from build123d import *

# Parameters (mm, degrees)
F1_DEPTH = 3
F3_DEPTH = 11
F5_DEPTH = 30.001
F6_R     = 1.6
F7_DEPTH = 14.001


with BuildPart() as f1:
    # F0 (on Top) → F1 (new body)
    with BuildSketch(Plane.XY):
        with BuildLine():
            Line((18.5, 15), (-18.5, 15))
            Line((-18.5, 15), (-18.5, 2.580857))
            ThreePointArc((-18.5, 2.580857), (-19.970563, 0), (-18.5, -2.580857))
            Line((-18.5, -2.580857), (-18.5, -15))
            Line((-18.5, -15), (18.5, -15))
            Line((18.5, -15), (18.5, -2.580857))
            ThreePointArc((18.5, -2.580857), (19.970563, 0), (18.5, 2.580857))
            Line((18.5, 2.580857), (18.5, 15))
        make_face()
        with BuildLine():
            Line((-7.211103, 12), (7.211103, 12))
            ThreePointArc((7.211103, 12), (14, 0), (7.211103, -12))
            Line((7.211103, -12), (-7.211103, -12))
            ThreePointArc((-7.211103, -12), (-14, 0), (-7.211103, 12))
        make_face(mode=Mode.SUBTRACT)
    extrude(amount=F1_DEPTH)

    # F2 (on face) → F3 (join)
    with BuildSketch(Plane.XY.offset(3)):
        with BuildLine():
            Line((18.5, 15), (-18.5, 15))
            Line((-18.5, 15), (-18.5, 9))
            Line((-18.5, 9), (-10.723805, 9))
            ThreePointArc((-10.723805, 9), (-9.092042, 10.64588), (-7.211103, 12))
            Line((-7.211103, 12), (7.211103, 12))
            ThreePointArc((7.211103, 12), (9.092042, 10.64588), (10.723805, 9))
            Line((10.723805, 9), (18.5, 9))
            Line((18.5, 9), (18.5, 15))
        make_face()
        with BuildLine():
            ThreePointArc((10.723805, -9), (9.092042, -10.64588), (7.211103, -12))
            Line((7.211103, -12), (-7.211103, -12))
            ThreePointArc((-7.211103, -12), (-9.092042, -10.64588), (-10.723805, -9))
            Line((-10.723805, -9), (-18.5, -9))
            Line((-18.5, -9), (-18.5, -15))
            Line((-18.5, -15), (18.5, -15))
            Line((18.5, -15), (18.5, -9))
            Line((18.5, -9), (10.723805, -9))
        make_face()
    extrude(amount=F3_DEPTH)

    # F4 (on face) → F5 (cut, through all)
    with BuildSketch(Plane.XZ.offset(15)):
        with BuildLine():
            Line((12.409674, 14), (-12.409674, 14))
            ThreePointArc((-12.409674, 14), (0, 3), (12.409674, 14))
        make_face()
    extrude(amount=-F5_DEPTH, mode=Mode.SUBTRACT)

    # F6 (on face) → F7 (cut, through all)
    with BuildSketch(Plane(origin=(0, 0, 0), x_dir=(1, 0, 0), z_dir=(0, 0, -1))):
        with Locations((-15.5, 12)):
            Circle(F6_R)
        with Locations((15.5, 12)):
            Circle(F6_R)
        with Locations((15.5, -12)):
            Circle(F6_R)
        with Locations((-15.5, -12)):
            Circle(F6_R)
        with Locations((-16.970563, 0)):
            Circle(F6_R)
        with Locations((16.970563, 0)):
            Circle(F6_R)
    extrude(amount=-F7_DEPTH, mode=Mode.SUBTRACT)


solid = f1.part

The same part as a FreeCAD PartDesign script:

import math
import FreeCAD as App
import Part
import Sketcher

V = App.Vector

doc = App.newDocument("Part")
body = doc.addObject("PartDesign::Body", "Body")

sketch1 = body.newObject("Sketcher::SketchObject", "Sketch")
sketch1.AttachmentSupport = (doc.getObject("XY_Plane"), [""])
sketch1.MapMode = "FlatFace"
sketch1.addGeometry([
    Part.LineSegment(V(18.5, 15, 0), V(-18.5, 15, 0)),
    Part.LineSegment(V(-18.5, 15, 0), V(-18.5, 2.6, 0)),
    Part.ArcOfCircle(Part.Circle(V(-17, 0, 0), V(0, 0, 1), 3), math.radians(121), math.radians(239)),
    Part.LineSegment(V(-18.5, -2.6, 0), V(-18.5, -15, 0)),
    Part.LineSegment(V(-18.5, -15, 0), V(18.5, -15, 0)),
    Part.LineSegment(V(18.5, -15, 0), V(18.5, -2.6, 0)),
    Part.ArcOfCircle(Part.Circle(V(17, 0, 0), V(0, 0, 1), 3), math.radians(-59), math.radians(59)),
    Part.LineSegment(V(18.5, 2.6, 0), V(18.5, 15, 0)),
    Part.ArcOfCircle(Part.Circle(V(0, 0, 0), V(0, 0, 1), 14), math.radians(121), math.radians(239)),
    Part.LineSegment(V(-7.2, 12, 0), V(7.2, 12, 0)),
    Part.ArcOfCircle(Part.Circle(V(0, 0, 0), V(0, 0, 1), 14), math.radians(-59), math.radians(59)),
    Part.LineSegment(V(7.2, -12, 0), V(-7.2, -12, 0)),
], False)
sketch1.addConstraint([
    Sketcher.Constraint("Coincident", 0, 2, 1, 1),
    Sketcher.Constraint("Coincident", 1, 2, 2, 1),
    Sketcher.Constraint("Coincident", 2, 2, 3, 1),
    Sketcher.Constraint("Coincident", 3, 2, 4, 1),
    Sketcher.Constraint("Coincident", 4, 2, 5, 1),
    Sketcher.Constraint("Coincident", 5, 2, 6, 1),
    Sketcher.Constraint("Coincident", 6, 2, 7, 1),
    Sketcher.Constraint("Coincident", 7, 2, 0, 1),
    Sketcher.Constraint("Coincident", 8, 1, 9, 1),
    Sketcher.Constraint("Coincident", 9, 2, 10, 2),
    Sketcher.Constraint("Coincident", 10, 1, 11, 1),
    Sketcher.Constraint("Coincident", 11, 2, 8, 2),
    Sketcher.Constraint("Horizontal", 0),
    Sketcher.Constraint("Vertical", 1),
    Sketcher.Constraint("Vertical", 3),
    Sketcher.Constraint("Horizontal", 4),
    Sketcher.Constraint("Vertical", 5),
    Sketcher.Constraint("Vertical", 7),
    Sketcher.Constraint("Horizontal", 9),
    Sketcher.Constraint("Horizontal", 11),
    Sketcher.Constraint("Coincident", 8, 3, -1, 1),
    Sketcher.Constraint("Coincident", 10, 3, -1, 1),
    Sketcher.Constraint("Equal", 2, 6),
    Sketcher.Constraint("Equal", 8, 10),
    Sketcher.Constraint("Symmetric", 2, 3, 6, 3, -1, 1),
    Sketcher.Constraint("Symmetric", 0, 2, 4, 2, -1, 1),
    Sketcher.Constraint("Symmetric", 2, 2, 5, 2, -2),
    Sketcher.Constraint("Horizontal", 1, 2, 6, 2),
    Sketcher.Constraint("Vertical", 9, 2, 10, 1),
    Sketcher.Constraint("Radius", 2, 3.0),
    Sketcher.Constraint("Radius", 8, 14.0),
    Sketcher.Constraint("DistanceX", 0, 2, 0, 1, 37.0),
    Sketcher.Constraint("DistanceY", -1, 1, 0, 2, 15.0),
    Sketcher.Constraint("DistanceY", -1, 1, 8, 1, 12.0),
    Sketcher.Constraint("DistanceY", 1, 2, 1, 1, 12.419143),
])
pad1 = body.newObject("PartDesign::Pad", "Pad")
pad1.Profile = sketch1
pad1.Length = 3

sketch2 = body.newObject("Sketcher::SketchObject", "Sketch001")
sketch2.AttachmentSupport = (doc.getObject("XY_Plane"), [""])
sketch2.MapMode = "FlatFace"
sketch2.AttachmentOffset = App.Placement(V(0, 0, 3), App.Rotation())
sketch2.addGeometry([
    Part.LineSegment(V(18.5, 15, 0), V(-18.5, 15, 0)),
    Part.LineSegment(V(-18.5, 15, 0), V(-18.5, 9, 0)),
    Part.LineSegment(V(-18.5, 9, 0), V(-10.723805, 9, 0)),
    Part.ArcOfCircle(Part.Circle(V(0.00002, -0.000022, 0), V(0, 0, 1), 14.000029), math.radians(121.002746), math.radians(139.994784)),
    Part.LineSegment(V(-7.211103, 12, 0), V(7.211103, 12, 0)),
    Part.ArcOfCircle(Part.Circle(V(-0.00002, -0.000022, 0), V(0, 0, 1), 14.000029), math.radians(40.005216), math.radians(58.997254)),
    Part.LineSegment(V(10.723805, 9, 0), V(18.5, 9, 0)),
    Part.LineSegment(V(18.5, 9, 0), V(18.5, 15, 0)),
    Part.ArcOfCircle(Part.Circle(V(-0.00002, 0.000022, 0), V(0, 0, 1), 14.000029), math.radians(-58.997254), math.radians(-40.005216)),
    Part.LineSegment(V(7.211103, -12, 0), V(-7.211103, -12, 0)),
    Part.ArcOfCircle(Part.Circle(V(0.00002, 0.000022, 0), V(0, 0, 1), 14.000029), math.radians(-139.994784), math.radians(-121.002746)),
    Part.LineSegment(V(-10.723805, -9, 0), V(-18.5, -9, 0)),
    Part.LineSegment(V(-18.5, -9, 0), V(-18.5, -15, 0)),
    Part.LineSegment(V(-18.5, -15, 0), V(18.5, -15, 0)),
    Part.LineSegment(V(18.5, -15, 0), V(18.5, -9, 0)),
    Part.LineSegment(V(18.5, -9, 0), V(10.723805, -9, 0)),
], False)
sketch2.addConstraint([
    Sketcher.Constraint("Coincident", 0, 2, 1, 1),
    Sketcher.Constraint("Coincident", 1, 2, 2, 1),
    Sketcher.Constraint("Coincident", 2, 2, 3, 2),
    Sketcher.Constraint("Coincident", 3, 1, 4, 1),
    Sketcher.Constraint("Coincident", 4, 2, 5, 2),
    Sketcher.Constraint("Coincident", 5, 1, 6, 1),
    Sketcher.Constraint("Coincident", 6, 2, 7, 1),
    Sketcher.Constraint("Coincident", 7, 2, 0, 1),
    Sketcher.Constraint("Coincident", 8, 1, 9, 1),
    Sketcher.Constraint("Coincident", 9, 2, 10, 2),
    Sketcher.Constraint("Coincident", 10, 1, 11, 1),
    Sketcher.Constraint("Coincident", 11, 2, 12, 1),
    Sketcher.Constraint("Coincident", 12, 2, 13, 1),
    Sketcher.Constraint("Coincident", 13, 2, 14, 1),
    Sketcher.Constraint("Coincident", 14, 2, 15, 1),
    Sketcher.Constraint("Coincident", 15, 2, 8, 2),
    Sketcher.Constraint("Horizontal", 0),
    Sketcher.Constraint("Vertical", 1),
    Sketcher.Constraint("Horizontal", 2),
    Sketcher.Constraint("Horizontal", 4),
    Sketcher.Constraint("Horizontal", 6),
    Sketcher.Constraint("Vertical", 7),
    Sketcher.Constraint("Horizontal", 9),
    Sketcher.Constraint("Horizontal", 11),
    Sketcher.Constraint("Vertical", 12),
    Sketcher.Constraint("Horizontal", 13),
    Sketcher.Constraint("Vertical", 14),
    Sketcher.Constraint("Horizontal", 15),
    Sketcher.Constraint("Equal", 3, 5),
    Sketcher.Constraint("Equal", 5, 8),
    Sketcher.Constraint("Equal", 8, 10),
    Sketcher.Constraint("Symmetric", 3, 3, 8, 3, -1, 1),
    Sketcher.Constraint("Symmetric", 5, 3, 10, 3, -1, 1),
    Sketcher.Constraint("Symmetric", 6, 2, 11, 2, -1, 1),
    Sketcher.Constraint("Symmetric", 0, 2, 13, 2, -1, 1),
    Sketcher.Constraint("Symmetric", 3, 3, 5, 3, -2),
    Sketcher.Constraint("Symmetric", 1, 2, 6, 2, -2),
    Sketcher.Constraint("Horizontal", 11, 2, 14, 2),
    Sketcher.Constraint("Vertical", 4, 2, 8, 1),
    Sketcher.Constraint("DistanceX", 0, 2, 0, 1, 37.0),
    Sketcher.Constraint("DistanceY", 1, 2, 1, 1, 6.0),
    Sketcher.Constraint("DistanceY", -1, 1, 0, 2, 15.0),
    Sketcher.Constraint("DistanceY", -1, 1, 3, 1, 12.0),
    Sketcher.Constraint("Radius", 3, 14.000029),
    Sketcher.Constraint("DistanceX", 2, 2, 3, 1, 3.512702),
    Sketcher.Constraint("DistanceX", 2, 1, 2, 2, 7.776195),
])
pad2 = body.newObject("PartDesign::Pad", "Pad001")
pad2.Profile = sketch2
pad2.Length = 11

sketch3 = body.newObject("Sketcher::SketchObject", "Sketch002")
sketch3.AttachmentSupport = (doc.getObject("XZ_Plane"), [""])
sketch3.MapMode = "FlatFace"
sketch3.AttachmentOffset = App.Placement(V(0, 0, 15), App.Rotation())
sketch3.addGeometry([
    Part.LineSegment(V(12, 14, 0), V(-12, 14, 0)),
    Part.ArcOfCircle(Part.Circle(V(0, 16, 0), V(0, 0, 1), 13), math.radians(-173), math.radians(-7)),
], False)
sketch3.addConstraint([
    Sketcher.Constraint("Coincident", 0, 1, 1, 2),
    Sketcher.Constraint("Coincident", 1, 1, 0, 2),
    Sketcher.Constraint("Horizontal", 0),
    Sketcher.Constraint("PointOnObject", 1, 3, -2),
    Sketcher.Constraint("Radius", 1, 12.5),
    Sketcher.Constraint("DistanceY", -1, 1, 0, 1, 14.0),
    Sketcher.Constraint("DistanceY", -1, 1, 1, 3, 15.5),
])
pocket1 = body.newObject("PartDesign::Pocket", "Pocket")
pocket1.Profile = sketch3
pocket1.Type = "ThroughAll"

sketch4 = body.newObject("Sketcher::SketchObject", "Sketch003")
sketch4.AttachmentSupport = (doc.getObject("XY_Plane"), [""])
sketch4.MapMode = "FlatFace"
sketch4.addGeometry([
    Part.Circle(V(-15.5, -12, 0), V(0, 0, 1), 1.6),
    Part.Circle(V(15.5, -12, 0), V(0, 0, 1), 1.6),
    Part.Circle(V(15.5, 12, 0), V(0, 0, 1), 1.6),
    Part.Circle(V(-15.5, 12, 0), V(0, 0, 1), 1.6),
    Part.Circle(V(-17, 0, 0), V(0, 0, 1), 1.6),
    Part.Circle(V(17, 0, 0), V(0, 0, 1), 1.6),
], False)
sketch4.addConstraint([
    Sketcher.Constraint("Equal", 0, 1),
    Sketcher.Constraint("Equal", 1, 2),
    Sketcher.Constraint("Equal", 2, 3),
    Sketcher.Constraint("Equal", 3, 4),
    Sketcher.Constraint("Equal", 4, 5),
    Sketcher.Constraint("Symmetric", 0, 3, 2, 3, -1, 1),
    Sketcher.Constraint("Symmetric", 1, 3, 3, 3, -1, 1),
    Sketcher.Constraint("Symmetric", 4, 3, 5, 3, -1, 1),
    Sketcher.Constraint("Symmetric", 0, 3, 1, 3, -2),
    Sketcher.Constraint("PointOnObject", 4, 3, -1),
    Sketcher.Constraint("Diameter", 0, 3.2),
    Sketcher.Constraint("DistanceY", 0, 3, -1, 1, 12.0),
    Sketcher.Constraint("DistanceX", 0, 3, 1, 3, 31.0),
    Sketcher.Constraint("DistanceX", 4, 3, -1, 1, 16.970563),
])
pocket2 = body.newObject("PartDesign::Pocket", "Pocket001")
pocket2.Profile = sketch4
pocket2.Type = "ThroughAll"
pocket2.Reversed = True

doc.recompute()
